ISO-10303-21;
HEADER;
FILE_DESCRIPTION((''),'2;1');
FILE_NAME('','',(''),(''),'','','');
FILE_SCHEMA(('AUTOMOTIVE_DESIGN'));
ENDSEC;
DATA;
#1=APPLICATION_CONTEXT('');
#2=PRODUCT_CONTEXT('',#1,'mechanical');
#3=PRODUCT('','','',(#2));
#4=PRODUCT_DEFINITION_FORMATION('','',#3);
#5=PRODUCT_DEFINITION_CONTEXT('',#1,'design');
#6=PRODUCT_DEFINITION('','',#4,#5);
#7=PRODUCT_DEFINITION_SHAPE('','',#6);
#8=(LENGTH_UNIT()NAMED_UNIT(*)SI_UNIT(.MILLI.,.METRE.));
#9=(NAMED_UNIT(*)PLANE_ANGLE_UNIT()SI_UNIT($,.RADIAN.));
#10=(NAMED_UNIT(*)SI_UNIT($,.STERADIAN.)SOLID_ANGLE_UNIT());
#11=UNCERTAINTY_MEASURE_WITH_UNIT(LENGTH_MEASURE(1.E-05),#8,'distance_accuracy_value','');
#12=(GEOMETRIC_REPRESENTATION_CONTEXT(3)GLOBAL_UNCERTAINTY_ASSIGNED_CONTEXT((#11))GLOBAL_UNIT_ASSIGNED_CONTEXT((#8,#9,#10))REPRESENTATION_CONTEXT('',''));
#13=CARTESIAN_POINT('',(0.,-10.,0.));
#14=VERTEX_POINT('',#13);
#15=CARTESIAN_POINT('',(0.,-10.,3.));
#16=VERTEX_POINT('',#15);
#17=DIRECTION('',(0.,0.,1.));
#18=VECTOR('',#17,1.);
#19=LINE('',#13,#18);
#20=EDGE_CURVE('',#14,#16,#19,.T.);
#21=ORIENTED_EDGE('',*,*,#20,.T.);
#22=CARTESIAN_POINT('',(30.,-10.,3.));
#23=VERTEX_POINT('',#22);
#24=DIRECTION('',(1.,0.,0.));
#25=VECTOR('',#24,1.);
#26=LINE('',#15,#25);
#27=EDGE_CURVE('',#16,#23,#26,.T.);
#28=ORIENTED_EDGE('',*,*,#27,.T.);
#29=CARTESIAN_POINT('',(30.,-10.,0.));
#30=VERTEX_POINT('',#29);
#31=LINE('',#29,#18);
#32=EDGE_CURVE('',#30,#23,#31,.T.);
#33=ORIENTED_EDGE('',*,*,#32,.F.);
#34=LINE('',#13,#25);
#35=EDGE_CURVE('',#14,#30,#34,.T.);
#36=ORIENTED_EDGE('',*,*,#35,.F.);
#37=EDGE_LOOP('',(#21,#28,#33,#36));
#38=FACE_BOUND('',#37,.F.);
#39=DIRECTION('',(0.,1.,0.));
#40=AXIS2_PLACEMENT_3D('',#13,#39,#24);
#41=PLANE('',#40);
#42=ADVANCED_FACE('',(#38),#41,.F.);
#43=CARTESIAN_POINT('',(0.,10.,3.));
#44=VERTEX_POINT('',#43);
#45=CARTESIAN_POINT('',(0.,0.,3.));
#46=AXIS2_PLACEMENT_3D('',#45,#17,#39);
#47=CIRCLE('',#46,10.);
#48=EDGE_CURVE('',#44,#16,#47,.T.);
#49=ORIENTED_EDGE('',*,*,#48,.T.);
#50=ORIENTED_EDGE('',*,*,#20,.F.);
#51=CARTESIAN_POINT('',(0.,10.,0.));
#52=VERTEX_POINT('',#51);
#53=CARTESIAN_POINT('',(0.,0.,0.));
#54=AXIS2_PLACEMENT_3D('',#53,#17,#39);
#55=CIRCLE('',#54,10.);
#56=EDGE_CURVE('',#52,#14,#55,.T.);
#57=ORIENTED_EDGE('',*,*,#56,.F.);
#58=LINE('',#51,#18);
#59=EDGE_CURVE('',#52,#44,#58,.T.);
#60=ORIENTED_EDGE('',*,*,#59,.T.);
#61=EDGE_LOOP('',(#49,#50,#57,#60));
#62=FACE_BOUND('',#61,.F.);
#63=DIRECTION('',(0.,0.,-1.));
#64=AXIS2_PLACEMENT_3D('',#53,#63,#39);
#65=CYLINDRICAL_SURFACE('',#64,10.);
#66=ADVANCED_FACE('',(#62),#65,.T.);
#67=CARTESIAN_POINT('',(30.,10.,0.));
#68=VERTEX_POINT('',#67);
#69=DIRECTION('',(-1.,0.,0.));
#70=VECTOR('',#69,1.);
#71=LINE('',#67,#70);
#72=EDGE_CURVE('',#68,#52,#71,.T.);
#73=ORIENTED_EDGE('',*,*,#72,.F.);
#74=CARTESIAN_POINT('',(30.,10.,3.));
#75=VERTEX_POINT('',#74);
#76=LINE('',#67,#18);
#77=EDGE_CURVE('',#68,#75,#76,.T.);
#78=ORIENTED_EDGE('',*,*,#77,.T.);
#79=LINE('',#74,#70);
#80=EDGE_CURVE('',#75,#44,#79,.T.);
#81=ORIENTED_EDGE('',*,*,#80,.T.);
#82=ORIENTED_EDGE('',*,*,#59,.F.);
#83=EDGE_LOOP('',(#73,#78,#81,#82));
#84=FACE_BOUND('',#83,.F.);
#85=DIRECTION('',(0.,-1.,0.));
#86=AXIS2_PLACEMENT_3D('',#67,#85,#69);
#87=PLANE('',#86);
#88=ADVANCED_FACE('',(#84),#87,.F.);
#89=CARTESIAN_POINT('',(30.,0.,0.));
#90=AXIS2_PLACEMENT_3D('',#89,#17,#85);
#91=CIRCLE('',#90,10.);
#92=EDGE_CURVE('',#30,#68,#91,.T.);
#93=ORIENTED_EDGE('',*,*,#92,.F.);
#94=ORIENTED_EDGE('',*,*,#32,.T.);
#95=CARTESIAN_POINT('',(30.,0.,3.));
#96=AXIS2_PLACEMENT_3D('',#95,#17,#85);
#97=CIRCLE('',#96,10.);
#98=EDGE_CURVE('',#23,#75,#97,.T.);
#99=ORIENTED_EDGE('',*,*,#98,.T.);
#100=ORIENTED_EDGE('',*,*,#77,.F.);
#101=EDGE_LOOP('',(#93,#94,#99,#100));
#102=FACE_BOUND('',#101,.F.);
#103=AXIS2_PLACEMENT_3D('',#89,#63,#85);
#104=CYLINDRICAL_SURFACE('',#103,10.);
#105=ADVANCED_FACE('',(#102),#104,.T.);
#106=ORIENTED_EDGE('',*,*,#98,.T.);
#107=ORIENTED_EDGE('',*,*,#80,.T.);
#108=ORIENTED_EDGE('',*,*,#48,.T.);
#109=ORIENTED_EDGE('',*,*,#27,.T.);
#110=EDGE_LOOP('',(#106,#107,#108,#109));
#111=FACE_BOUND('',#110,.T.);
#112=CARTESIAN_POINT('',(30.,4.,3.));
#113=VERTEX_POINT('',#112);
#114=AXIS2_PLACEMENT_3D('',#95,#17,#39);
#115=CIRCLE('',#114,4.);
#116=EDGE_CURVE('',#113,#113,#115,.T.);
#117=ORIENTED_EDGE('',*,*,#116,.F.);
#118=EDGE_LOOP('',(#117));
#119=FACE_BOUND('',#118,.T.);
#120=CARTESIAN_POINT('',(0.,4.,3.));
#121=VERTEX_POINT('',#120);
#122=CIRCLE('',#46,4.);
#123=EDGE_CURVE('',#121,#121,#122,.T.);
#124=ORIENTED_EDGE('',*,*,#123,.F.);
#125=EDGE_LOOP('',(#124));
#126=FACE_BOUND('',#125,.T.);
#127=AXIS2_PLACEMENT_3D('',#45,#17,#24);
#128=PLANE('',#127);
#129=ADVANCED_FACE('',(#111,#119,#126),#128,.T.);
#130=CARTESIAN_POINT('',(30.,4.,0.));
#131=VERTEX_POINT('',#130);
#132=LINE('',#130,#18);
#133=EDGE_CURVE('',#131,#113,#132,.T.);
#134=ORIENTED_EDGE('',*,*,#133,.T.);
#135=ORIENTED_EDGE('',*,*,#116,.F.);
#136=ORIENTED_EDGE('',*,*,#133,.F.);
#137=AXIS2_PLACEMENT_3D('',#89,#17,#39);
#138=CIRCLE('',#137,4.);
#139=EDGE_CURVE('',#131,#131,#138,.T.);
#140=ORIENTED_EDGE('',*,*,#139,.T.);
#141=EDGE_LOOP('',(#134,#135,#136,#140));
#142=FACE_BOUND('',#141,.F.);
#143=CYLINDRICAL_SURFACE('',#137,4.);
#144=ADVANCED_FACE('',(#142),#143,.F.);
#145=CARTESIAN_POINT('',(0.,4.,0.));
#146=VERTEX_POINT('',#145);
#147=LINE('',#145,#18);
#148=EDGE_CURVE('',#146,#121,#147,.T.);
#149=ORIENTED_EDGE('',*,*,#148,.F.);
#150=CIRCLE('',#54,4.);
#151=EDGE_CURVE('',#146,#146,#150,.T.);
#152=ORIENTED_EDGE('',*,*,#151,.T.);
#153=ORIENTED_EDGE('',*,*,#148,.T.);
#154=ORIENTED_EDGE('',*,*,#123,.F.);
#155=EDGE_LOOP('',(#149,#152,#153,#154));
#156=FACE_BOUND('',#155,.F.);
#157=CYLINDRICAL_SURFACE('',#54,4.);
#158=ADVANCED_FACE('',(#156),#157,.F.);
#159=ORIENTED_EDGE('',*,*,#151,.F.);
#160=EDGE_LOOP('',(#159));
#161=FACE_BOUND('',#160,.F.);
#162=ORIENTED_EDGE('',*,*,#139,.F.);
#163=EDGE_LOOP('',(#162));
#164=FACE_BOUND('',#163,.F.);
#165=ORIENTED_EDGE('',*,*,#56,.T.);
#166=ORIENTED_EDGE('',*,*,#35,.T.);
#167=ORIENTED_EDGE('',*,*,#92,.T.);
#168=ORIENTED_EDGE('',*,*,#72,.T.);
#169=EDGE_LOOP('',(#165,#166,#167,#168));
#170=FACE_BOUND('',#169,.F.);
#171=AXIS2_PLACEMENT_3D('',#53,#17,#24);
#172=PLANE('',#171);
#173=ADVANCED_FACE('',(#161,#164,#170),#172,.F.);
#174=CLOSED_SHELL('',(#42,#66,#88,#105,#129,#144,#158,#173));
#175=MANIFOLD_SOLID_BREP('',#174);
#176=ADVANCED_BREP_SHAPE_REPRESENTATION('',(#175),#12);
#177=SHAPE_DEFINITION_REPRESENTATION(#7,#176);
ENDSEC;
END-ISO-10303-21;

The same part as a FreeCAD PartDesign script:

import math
import FreeCAD as App
import Part
import Sketcher
from FreeCAD import Vector

doc = App.newDocument("Part")
body = doc.addObject("PartDesign::Body", "Body")

# Sketch on XY plane
sketch1 = body.newObject("Sketcher::SketchObject", "Sketch")
sketch1.AttachmentSupport = (doc.getObject("XY_Plane"), [""])
sketch1.MapMode = "FlatFace"
sketch1.addGeometry(Part.ArcOfCircle(Part.Circle(Vector(0, 0, 0), Vector(0, 0, 1), 10), math.radians(90), math.radians(270)), False)
sketch1.addGeometry(Part.LineSegment(Vector(0, -10, 0), Vector(30, -10, 0)), False)
sketch1.addGeometry(Part.ArcOfCircle(Part.Circle(Vector(30, 0, 0), Vector(0, 0, 1), 10), math.radians(-90), math.radians(90)), False)
sketch1.addGeometry(Part.LineSegment(Vector(30, 10, 0), Vector(0, 10, 0)), False)
sketch1.addConstraint(Sketcher.Constraint("Tangent", 0, 2, 1, 1))
sketch1.addConstraint(Sketcher.Constraint("Tangent", 1, 2, 2, 1))
sketch1.addConstraint(Sketcher.Constraint("Tangent", 2, 2, 3, 1))
sketch1.addConstraint(Sketcher.Constraint("Tangent", 3, 2, 0, 1))
sketch1.addConstraint(Sketcher.Constraint("Horizontal", 1))
sketch1.addConstraint(Sketcher.Constraint("Horizontal", 3))
sketch1.addConstraint(Sketcher.Constraint("Coincident", 0, 3, -1, 1))
sketch1.addConstraint(Sketcher.Constraint("Radius", 0, 10.0))
sketch1.addConstraint(Sketcher.Constraint("DistanceX", 1, 1, 1, 2, 30.0))
pad1 = body.newObject("PartDesign::Pad", "Pad")
pad1.Profile = sketch1
pad1.Length = 3

# Sketch on XY plane
sketch2 = body.newObject("Sketcher::SketchObject", "Sketch001")
sketch2.AttachmentSupport = (doc.getObject("XY_Plane"), [""])
sketch2.MapMode = "FlatFace"
sketch2.addGeometry(Part.Circle(Vector(0, 0, 0), Vector(0, 0, 1), 4), False)
sketch2.addGeometry(Part.Circle(Vector(30, 0, 0), Vector(0, 0, 1), 4), False)
sketch2.addConstraint(Sketcher.Constraint("Coincident", 0, 3, -1, 1))
sketch2.addConstraint(Sketcher.Constraint("Equal", 0, 1))
sketch2.addConstraint(Sketcher.Constraint("PointOnObject", 1, 3, -1))
sketch2.addConstraint(Sketcher.Constraint("Diameter", 0, 8.0))
sketch2.addConstraint(Sketcher.Constraint("DistanceX", -1, 1, 1, 3, 30.0))
doc.recompute()
hole = body.newObject("PartDesign::Hole", "Hole")
hole.Profile = sketch2
hole.ThreadType = "None"
hole.Diameter = 8
hole.DepthType = "ThroughAll"
hole.Reversed = True

doc.recompute()
